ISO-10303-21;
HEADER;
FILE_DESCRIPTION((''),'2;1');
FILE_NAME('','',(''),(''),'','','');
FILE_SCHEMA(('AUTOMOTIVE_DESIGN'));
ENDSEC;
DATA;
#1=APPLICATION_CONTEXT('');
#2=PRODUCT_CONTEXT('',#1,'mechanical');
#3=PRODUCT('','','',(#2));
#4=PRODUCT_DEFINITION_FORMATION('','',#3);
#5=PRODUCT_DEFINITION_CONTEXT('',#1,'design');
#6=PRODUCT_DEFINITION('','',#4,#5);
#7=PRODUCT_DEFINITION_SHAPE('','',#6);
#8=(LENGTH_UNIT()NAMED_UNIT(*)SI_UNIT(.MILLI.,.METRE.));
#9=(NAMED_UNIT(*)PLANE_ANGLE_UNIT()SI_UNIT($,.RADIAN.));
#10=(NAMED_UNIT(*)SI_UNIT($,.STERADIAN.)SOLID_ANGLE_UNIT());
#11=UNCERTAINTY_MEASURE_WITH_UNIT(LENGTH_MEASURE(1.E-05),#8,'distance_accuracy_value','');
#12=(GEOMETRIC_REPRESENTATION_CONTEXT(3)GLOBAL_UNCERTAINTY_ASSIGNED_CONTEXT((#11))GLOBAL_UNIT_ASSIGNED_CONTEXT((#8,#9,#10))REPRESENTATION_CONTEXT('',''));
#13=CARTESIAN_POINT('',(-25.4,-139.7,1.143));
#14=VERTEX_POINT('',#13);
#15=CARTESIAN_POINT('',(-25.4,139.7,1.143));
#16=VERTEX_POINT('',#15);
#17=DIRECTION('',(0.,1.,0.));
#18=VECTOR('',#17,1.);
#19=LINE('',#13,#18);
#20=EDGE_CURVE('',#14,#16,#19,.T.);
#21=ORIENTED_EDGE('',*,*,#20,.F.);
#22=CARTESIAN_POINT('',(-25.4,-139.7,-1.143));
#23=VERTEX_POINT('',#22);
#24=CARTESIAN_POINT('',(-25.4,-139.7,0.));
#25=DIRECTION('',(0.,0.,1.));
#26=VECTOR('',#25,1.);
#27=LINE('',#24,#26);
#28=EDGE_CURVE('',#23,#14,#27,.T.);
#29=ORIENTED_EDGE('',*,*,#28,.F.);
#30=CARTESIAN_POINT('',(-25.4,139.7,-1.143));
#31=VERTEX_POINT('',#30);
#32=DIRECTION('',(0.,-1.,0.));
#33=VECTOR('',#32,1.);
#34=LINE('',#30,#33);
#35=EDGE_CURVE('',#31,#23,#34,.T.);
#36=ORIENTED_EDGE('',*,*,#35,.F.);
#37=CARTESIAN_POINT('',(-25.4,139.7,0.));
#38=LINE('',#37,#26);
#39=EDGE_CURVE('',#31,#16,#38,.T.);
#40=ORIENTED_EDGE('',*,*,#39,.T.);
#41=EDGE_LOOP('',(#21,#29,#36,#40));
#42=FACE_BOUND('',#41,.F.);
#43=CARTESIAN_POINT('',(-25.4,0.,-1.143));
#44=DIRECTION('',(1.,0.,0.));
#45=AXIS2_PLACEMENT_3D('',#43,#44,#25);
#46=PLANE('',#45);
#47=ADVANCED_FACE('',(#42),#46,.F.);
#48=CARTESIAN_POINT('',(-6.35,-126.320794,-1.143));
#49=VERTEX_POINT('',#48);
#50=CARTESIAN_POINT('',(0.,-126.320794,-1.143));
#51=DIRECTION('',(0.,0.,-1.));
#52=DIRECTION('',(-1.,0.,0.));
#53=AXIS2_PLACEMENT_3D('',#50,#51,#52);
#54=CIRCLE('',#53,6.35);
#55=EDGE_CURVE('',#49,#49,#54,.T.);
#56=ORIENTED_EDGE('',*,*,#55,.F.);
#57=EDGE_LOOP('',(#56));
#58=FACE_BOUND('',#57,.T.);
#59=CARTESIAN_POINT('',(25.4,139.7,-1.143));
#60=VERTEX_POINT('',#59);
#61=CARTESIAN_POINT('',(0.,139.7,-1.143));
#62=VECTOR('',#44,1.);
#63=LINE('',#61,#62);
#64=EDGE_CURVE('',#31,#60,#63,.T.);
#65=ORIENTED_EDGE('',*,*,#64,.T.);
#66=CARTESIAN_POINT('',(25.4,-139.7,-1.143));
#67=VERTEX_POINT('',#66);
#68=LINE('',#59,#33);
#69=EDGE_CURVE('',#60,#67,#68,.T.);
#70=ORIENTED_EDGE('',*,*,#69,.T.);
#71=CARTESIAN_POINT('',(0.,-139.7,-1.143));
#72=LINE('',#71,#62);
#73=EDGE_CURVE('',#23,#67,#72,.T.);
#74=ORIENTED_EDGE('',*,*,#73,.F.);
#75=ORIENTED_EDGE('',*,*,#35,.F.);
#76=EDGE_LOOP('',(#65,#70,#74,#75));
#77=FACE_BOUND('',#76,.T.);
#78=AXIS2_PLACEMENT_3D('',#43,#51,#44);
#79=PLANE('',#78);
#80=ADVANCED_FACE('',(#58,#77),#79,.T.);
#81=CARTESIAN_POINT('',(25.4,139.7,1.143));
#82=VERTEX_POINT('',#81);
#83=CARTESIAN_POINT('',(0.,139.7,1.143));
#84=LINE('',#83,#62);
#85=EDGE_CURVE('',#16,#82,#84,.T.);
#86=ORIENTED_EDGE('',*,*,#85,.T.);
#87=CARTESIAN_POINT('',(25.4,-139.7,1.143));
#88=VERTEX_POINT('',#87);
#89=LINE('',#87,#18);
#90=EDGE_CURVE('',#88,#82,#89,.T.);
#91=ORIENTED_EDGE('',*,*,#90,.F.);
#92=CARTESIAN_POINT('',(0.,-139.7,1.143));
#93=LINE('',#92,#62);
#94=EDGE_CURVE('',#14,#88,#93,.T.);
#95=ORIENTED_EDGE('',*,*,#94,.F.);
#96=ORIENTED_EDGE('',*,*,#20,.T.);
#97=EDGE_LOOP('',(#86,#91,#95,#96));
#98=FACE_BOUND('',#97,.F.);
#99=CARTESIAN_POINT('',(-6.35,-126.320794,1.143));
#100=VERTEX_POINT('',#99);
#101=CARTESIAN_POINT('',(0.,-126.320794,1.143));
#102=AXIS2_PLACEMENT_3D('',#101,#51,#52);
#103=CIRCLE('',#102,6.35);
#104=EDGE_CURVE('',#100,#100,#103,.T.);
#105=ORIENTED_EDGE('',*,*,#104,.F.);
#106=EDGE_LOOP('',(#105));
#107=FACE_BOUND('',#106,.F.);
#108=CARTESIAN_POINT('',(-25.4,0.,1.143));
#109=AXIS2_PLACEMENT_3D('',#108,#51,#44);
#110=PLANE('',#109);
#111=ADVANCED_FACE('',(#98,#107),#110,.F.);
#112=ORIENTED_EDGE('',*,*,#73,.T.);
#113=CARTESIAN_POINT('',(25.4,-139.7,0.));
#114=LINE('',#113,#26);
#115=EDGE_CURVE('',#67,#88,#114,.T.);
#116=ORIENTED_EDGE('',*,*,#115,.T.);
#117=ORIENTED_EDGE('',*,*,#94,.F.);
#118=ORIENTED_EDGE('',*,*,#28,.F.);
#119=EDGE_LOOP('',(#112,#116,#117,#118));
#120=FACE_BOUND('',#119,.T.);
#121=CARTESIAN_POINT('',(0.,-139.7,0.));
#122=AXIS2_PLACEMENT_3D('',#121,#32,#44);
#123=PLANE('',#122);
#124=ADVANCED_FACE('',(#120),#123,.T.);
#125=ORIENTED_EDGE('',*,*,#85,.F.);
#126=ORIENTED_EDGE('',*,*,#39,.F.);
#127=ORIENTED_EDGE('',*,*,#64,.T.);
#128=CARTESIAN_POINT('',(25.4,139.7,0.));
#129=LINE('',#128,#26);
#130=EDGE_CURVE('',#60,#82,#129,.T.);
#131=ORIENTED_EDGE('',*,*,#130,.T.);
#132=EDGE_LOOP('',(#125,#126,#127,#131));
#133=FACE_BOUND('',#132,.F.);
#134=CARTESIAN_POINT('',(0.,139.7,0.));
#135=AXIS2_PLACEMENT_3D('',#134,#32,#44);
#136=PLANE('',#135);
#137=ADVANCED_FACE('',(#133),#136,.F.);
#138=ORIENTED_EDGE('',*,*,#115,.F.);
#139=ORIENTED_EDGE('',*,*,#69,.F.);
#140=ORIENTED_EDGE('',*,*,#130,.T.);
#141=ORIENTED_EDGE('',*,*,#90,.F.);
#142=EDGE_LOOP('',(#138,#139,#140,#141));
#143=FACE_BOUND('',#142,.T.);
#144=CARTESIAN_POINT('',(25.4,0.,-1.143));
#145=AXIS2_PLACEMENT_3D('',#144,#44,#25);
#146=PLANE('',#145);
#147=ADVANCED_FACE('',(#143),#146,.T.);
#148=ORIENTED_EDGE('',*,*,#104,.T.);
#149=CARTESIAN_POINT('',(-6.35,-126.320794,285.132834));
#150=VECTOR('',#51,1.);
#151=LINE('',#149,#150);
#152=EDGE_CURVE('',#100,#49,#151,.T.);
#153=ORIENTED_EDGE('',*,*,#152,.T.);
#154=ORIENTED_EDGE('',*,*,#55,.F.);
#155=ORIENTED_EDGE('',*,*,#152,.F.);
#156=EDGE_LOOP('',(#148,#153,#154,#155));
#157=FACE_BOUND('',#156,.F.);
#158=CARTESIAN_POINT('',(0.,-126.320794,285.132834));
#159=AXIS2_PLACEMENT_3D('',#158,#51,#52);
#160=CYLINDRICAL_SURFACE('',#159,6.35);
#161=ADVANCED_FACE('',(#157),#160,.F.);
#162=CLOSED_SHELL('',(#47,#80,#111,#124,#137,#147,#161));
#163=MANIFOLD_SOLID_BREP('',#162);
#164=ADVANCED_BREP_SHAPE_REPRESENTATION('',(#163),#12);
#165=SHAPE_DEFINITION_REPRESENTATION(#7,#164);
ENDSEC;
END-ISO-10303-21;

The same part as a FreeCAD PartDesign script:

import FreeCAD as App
import Part
import Sketcher

V = App.Vector
Q = App.Units.Quantity


def add_polygon(sketch, points):
    """Adds a closed chain of lines whose ends are joined by coincident constraints."""
    first, n = sketch.GeometryCount, len(points)
    for a, b in zip(points, points[1:] + points[:1]):
        sketch.addGeometry(Part.LineSegment(App.Vector(*a, 0), App.Vector(*b, 0)), False)
    for i in range(n):
        sketch.addConstraint(Sketcher.Constraint("Coincident", first + i, 2, first + (i + 1) % n, 1))

doc = App.newDocument("Part")
body = doc.addObject("PartDesign::Body", "Body")

sketch1 = body.newObject("Sketcher::SketchObject", "Sketch")
sketch1.AttachmentSupport = (doc.getObject("XZ_Plane"), [""])
sketch1.MapMode = "FlatFace"
add_polygon(sketch1, [(-25.4, 1.1), (-25.4, -1.1), (25.4, -1.1), (25.4, 1.1)])
sketch1.addConstraint(Sketcher.Constraint("Vertical", 0))
sketch1.addConstraint(Sketcher.Constraint("Horizontal", 1))
sketch1.addConstraint(Sketcher.Constraint("Vertical", 2))
sketch1.addConstraint(Sketcher.Constraint("Horizontal", 3))
sketch1.addConstraint(Sketcher.Constraint("Symmetric", 0, 2, 2, 2, -1, 1))
sketch1.addConstraint(Sketcher.Constraint("DistanceX", 1, 1, 1, 2, Q("2 in")))
sketch1.addConstraint(Sketcher.Constraint("DistanceY", 0, 2, 0, 1, Q("0.09 in")))
pad1 = body.newObject("PartDesign::Pad", "Pad")
pad1.Profile = sketch1
pad1.Length = Q("11 in")
pad1.Midplane = True

sketch2 = body.newObject("Sketcher::SketchObject", "Sketch001")
sketch2.AttachmentSupport = (doc.getObject("XY_Plane"), [""])
sketch2.MapMode = "FlatFace"
sketch2.AttachmentOffset = App.Placement(V(0, 0, 0.045 * 25.4), App.Rotation())
sketch2.addGeometry(Part.Circle(V(0, -126, 0), V(0, 0, 1), 6), False)
sketch2.addConstraint(Sketcher.Constraint("PointOnObject", 0, 3, -2))
sketch2.addConstraint(Sketcher.Constraint("Diameter", 0, Q("0.5 in")))
sketch2.addConstraint(Sketcher.Constraint("DistanceY", 0, 3, -1, 1, 126.320794))
doc.recompute()
hole = body.newObject("PartDesign::Hole", "Hole")
hole.Profile = sketch2
hole.ThreadType = "None"
hole.Diameter = Q("0.5 in")
hole.DepthType = "ThroughAll"

doc.recompute()
